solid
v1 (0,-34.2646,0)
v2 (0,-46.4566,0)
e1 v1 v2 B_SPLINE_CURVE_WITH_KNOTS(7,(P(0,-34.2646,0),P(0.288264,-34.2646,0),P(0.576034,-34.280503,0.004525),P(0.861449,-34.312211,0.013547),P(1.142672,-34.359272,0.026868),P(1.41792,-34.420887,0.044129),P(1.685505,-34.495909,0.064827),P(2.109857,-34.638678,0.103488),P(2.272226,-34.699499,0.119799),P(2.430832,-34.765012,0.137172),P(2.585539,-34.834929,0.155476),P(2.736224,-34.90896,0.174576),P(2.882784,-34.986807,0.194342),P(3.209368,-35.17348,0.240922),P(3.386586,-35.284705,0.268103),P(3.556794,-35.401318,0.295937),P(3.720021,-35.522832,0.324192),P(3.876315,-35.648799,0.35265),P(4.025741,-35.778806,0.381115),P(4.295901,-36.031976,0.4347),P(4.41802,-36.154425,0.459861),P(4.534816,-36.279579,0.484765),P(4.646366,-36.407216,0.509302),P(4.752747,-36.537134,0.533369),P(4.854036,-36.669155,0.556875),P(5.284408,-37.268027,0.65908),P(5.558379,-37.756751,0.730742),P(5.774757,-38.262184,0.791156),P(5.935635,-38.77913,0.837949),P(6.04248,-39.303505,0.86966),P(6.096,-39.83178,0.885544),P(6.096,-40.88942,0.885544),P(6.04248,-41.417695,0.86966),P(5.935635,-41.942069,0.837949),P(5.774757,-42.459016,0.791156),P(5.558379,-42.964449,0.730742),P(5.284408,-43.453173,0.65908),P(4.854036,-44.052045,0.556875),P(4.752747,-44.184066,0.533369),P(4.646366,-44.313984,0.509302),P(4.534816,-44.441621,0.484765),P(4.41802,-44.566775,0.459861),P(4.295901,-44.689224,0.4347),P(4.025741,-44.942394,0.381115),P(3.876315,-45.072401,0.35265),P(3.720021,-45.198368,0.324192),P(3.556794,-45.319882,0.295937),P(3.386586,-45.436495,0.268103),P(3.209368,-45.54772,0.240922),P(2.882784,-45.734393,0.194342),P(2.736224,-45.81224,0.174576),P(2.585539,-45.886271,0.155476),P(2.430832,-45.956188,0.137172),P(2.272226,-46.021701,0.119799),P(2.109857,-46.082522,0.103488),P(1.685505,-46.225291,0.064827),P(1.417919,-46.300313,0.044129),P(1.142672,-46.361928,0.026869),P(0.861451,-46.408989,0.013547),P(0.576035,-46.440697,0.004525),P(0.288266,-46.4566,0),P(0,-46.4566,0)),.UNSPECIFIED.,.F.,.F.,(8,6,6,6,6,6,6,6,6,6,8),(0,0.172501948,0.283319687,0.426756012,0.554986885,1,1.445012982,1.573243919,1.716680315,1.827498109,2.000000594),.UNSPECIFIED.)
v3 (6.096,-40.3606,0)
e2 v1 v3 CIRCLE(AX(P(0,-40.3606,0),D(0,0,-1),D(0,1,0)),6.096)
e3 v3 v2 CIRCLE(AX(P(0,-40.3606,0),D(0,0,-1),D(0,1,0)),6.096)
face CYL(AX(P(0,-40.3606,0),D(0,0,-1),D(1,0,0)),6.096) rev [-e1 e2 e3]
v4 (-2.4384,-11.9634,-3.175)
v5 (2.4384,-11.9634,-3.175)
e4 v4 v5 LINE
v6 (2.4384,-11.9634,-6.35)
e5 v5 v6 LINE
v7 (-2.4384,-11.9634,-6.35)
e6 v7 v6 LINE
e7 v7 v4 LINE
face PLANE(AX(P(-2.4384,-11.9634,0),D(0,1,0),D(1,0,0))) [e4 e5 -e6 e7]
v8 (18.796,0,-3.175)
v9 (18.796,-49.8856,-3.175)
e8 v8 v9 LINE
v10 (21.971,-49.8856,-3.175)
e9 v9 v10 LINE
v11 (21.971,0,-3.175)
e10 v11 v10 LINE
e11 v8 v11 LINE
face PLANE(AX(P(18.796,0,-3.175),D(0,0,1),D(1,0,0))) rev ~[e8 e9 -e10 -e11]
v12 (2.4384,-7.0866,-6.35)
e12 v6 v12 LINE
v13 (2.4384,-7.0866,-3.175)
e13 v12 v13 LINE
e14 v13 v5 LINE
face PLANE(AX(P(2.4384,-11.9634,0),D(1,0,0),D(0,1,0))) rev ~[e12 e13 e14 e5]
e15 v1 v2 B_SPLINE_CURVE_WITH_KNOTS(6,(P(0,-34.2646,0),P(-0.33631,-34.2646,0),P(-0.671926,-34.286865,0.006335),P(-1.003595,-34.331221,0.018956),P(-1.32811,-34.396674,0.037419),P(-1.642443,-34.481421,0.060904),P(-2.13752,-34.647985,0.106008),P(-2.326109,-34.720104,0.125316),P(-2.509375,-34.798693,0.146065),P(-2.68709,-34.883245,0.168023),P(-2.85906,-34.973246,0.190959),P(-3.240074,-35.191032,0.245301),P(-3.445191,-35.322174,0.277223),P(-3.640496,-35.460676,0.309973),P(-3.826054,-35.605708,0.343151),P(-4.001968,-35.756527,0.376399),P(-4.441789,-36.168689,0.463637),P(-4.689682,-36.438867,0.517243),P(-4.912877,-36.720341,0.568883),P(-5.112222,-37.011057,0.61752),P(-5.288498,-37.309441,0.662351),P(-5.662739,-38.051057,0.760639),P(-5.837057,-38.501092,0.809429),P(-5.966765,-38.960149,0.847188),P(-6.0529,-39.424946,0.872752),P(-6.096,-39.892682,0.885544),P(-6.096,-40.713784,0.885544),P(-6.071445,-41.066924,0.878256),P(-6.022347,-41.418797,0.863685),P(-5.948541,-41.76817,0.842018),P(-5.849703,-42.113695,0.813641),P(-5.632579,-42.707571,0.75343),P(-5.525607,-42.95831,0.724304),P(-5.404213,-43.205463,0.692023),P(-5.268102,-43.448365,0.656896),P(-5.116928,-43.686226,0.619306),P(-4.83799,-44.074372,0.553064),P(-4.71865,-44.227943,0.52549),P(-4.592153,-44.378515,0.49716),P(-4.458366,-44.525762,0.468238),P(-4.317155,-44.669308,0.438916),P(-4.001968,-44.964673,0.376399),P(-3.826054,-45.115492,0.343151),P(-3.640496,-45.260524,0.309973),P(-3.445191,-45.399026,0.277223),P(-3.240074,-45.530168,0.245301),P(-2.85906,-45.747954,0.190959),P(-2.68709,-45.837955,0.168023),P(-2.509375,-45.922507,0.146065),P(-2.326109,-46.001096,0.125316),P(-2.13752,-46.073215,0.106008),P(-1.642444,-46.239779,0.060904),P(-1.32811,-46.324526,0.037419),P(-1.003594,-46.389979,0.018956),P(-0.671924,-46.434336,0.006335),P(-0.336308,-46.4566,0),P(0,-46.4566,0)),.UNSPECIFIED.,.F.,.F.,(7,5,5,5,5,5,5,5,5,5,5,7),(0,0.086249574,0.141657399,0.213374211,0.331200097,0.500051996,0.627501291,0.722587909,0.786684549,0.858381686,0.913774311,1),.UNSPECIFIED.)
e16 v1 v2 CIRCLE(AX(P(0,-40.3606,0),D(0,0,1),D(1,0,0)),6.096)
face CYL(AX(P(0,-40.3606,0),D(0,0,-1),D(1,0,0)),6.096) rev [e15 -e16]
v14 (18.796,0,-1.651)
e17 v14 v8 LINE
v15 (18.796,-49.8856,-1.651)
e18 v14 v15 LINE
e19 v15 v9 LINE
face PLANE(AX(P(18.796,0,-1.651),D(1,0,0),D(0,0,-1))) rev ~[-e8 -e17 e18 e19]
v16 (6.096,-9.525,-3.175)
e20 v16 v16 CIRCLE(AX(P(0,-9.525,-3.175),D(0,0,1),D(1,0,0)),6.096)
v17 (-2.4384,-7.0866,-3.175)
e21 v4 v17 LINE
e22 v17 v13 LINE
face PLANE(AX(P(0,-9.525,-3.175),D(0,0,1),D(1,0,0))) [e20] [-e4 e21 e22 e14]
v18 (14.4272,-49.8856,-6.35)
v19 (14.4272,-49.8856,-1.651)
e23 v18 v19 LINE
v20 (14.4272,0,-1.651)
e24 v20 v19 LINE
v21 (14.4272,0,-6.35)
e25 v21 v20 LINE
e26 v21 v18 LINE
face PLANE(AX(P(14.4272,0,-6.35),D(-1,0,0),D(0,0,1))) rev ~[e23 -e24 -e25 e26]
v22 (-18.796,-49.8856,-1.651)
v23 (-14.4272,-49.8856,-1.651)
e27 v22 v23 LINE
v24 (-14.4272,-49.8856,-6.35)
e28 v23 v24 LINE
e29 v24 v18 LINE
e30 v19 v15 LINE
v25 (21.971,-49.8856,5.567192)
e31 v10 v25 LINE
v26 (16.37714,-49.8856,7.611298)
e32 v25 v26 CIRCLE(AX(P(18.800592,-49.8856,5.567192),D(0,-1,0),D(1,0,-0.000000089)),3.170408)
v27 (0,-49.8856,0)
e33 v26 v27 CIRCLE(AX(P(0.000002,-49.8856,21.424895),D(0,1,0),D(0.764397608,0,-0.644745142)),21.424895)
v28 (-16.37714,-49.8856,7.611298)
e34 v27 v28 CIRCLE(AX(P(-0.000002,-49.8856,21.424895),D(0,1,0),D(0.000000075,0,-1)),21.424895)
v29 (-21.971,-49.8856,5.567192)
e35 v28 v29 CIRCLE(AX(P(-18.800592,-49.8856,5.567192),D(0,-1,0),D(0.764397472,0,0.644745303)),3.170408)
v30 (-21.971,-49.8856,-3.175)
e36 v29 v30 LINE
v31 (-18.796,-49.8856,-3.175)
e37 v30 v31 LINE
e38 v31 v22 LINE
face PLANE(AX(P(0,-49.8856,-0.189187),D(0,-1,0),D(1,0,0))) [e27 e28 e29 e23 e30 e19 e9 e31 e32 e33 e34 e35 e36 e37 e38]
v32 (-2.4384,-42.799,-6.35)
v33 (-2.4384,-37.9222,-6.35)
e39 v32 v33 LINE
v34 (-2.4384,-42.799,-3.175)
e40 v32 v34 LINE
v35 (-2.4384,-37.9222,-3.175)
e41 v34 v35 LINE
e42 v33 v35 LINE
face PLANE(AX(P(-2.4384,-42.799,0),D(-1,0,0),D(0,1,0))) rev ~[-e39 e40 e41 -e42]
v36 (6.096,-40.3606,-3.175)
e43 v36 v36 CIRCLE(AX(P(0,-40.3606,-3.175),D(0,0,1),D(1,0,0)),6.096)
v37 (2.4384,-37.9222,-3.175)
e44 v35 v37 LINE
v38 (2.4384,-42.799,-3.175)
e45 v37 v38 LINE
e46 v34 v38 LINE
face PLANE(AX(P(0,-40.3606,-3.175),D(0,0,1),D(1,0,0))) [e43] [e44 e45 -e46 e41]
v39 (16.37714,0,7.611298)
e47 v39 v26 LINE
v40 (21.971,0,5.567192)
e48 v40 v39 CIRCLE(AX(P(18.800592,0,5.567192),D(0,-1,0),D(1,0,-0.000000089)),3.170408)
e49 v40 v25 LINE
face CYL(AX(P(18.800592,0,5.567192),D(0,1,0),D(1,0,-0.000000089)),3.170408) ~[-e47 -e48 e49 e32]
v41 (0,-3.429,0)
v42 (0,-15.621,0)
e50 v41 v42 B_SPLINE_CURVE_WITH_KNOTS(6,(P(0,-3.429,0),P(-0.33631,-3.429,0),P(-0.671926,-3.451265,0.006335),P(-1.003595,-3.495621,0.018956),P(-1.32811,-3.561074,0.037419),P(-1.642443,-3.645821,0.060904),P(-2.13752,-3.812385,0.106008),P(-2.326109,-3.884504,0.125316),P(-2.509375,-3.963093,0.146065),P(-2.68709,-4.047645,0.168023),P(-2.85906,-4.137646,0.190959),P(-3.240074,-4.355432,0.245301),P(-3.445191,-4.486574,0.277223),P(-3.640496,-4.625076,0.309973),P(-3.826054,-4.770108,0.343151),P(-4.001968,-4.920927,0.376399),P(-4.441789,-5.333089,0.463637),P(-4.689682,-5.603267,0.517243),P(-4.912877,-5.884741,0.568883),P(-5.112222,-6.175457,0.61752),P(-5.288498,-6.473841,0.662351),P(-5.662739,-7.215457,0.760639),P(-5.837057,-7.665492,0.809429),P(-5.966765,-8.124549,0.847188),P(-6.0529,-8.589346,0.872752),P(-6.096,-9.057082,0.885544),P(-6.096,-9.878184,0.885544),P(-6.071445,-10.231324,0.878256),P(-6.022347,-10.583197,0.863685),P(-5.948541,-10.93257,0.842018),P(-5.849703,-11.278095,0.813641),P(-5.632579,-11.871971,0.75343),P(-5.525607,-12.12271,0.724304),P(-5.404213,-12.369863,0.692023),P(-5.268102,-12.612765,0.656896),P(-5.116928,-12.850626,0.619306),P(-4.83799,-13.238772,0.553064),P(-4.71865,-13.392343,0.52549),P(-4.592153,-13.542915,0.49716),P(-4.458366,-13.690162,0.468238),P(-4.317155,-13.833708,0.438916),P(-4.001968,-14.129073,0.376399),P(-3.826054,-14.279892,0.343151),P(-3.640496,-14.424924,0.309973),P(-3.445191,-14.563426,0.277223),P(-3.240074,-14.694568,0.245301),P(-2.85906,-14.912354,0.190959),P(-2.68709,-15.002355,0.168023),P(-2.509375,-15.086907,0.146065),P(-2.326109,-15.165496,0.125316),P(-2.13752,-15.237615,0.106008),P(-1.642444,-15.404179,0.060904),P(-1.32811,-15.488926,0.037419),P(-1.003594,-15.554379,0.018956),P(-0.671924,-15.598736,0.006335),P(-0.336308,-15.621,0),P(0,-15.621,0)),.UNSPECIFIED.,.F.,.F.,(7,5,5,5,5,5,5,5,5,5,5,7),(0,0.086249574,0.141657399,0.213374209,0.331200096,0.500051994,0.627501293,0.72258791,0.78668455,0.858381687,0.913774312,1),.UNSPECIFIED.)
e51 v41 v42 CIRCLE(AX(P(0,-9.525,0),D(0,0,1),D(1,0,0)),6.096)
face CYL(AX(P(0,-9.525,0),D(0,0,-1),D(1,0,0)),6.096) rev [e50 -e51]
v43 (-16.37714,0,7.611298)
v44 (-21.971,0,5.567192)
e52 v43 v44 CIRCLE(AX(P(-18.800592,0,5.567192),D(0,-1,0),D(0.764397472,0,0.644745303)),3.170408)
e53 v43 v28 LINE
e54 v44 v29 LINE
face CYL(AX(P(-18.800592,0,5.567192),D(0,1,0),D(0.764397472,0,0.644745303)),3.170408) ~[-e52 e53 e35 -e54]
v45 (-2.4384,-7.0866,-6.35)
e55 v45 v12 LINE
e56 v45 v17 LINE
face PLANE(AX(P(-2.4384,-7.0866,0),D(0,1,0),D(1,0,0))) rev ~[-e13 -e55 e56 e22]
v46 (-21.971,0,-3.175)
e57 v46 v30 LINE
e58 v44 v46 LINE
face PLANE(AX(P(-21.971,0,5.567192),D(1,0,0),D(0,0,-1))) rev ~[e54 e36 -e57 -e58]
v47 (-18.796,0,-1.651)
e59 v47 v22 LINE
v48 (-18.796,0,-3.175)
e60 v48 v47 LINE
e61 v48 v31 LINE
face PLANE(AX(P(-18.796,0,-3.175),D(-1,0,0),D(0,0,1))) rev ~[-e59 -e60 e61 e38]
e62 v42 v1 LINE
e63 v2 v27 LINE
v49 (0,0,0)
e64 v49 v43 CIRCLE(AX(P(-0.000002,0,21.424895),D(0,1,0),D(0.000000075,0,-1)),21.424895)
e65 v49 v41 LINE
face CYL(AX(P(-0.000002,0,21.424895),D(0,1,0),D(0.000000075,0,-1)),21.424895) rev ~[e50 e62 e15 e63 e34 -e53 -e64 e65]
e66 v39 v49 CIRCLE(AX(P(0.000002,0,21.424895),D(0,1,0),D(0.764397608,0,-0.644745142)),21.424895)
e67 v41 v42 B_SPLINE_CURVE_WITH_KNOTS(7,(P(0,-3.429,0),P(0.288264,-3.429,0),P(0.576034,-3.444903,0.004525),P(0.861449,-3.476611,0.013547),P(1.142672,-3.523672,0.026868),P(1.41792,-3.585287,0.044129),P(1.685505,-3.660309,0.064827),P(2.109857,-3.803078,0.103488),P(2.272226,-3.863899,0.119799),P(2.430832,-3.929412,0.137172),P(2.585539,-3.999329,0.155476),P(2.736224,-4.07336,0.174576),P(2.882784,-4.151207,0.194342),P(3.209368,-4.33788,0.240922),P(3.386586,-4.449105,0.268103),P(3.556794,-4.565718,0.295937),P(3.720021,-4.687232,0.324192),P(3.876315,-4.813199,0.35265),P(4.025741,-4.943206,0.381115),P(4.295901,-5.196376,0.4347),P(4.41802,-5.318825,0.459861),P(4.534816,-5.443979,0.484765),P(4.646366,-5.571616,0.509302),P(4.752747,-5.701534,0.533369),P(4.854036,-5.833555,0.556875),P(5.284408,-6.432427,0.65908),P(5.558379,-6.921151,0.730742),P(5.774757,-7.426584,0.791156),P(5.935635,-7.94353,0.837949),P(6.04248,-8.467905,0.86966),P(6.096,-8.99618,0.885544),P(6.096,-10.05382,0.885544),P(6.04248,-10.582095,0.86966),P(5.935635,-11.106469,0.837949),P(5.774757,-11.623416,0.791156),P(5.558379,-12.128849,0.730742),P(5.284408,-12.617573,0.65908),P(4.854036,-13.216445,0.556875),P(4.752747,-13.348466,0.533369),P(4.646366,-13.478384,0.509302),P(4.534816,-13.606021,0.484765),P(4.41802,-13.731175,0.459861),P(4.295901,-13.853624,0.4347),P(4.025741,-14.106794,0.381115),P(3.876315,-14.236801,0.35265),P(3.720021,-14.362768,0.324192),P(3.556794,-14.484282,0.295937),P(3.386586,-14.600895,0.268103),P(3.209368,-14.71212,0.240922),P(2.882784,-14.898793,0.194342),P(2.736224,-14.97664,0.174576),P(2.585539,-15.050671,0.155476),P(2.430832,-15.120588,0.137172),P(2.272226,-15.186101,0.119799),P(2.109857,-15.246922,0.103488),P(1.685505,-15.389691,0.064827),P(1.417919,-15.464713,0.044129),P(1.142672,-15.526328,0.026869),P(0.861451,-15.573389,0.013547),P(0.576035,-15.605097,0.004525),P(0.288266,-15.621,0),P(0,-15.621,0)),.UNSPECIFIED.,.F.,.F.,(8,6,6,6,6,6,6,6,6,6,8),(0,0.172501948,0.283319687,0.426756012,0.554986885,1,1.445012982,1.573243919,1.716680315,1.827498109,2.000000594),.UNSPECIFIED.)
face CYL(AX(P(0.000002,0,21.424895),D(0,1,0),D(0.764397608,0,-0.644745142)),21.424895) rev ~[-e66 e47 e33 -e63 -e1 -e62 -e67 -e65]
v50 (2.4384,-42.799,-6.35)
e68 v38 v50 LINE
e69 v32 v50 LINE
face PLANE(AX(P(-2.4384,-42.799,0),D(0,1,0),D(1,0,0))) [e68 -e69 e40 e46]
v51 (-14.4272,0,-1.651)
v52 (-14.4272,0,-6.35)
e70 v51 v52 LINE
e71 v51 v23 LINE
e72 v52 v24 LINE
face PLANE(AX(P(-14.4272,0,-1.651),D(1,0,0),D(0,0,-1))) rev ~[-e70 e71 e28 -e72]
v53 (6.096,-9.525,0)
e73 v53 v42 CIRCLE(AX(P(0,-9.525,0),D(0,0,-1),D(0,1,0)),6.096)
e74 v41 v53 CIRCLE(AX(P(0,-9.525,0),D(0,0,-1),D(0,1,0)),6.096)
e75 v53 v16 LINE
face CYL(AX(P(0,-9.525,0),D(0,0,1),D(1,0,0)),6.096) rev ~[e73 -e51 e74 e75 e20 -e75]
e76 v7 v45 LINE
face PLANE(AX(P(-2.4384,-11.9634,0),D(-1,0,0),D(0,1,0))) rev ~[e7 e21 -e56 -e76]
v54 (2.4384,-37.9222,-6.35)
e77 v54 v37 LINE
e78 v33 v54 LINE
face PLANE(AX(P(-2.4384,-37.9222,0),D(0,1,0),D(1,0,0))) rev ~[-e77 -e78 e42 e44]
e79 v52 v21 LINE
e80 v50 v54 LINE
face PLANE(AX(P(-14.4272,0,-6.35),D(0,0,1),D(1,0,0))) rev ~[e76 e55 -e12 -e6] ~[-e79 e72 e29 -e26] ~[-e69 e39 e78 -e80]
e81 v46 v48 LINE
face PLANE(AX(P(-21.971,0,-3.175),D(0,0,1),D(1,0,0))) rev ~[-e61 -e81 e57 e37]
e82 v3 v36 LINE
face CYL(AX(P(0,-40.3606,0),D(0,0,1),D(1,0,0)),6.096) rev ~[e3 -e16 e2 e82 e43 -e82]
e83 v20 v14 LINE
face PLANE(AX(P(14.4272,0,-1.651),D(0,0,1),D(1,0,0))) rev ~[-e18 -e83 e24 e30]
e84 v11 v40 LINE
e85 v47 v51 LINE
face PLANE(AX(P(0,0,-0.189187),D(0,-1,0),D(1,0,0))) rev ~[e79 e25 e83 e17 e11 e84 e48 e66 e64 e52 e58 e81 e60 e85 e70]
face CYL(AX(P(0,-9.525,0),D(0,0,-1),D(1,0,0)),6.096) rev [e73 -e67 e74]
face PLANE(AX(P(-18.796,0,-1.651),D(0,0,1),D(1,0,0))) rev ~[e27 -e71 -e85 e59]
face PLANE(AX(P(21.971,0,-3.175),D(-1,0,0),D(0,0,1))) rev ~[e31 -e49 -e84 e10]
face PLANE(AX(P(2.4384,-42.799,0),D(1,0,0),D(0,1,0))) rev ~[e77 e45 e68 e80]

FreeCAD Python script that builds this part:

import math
import FreeCAD as App
import Part
import Sketcher
Q = App.Units.Quantity

doc = App.newDocument("Part")
body = doc.addObject("PartDesign::Body", "Body")

# Sketch on XZ plane
sketch1 = body.newObject("Sketcher::SketchObject", "Sketch")
sketch1.AttachmentSupport = (doc.getObject("XZ_Plane"), [""])
sketch1.MapMode = "FlatFace"
sketch1.addGeometry(Part.LineSegment(App.Vector(-22, 5.6, 0), App.Vector(-22, -3.2, 0)), False)
sketch1.addGeometry(Part.LineSegment(App.Vector(-22, -3.2, 0), App.Vector(-18.8, -3.2, 0)), False)
sketch1.addGeometry(Part.LineSegment(App.Vector(-18.8, -3.2, 0), App.Vector(-18.8, -1.7, 0)), False)
sketch1.addGeometry(Part.LineSegment(App.Vector(-18.8, -1.7, 0), App.Vector(-14.4, -1.7, 0)), False)
sketch1.addGeometry(Part.LineSegment(App.Vector(-14.4, -1.7, 0), App.Vector(-14.4, -6.3, 0)), False)
sketch1.addGeometry(Part.LineSegment(App.Vector(-14.4, -6.3, 0), App.Vector(14.4, -6.3, 0)), False)
sketch1.addGeometry(Part.LineSegment(App.Vector(14.4, -6.3, 0), App.Vector(14.4, -1.7, 0)), False)
sketch1.addGeometry(Part.LineSegment(App.Vector(14.4, -1.7, 0), App.Vector(18.8, -1.7, 0)), False)
sketch1.addGeometry(Part.LineSegment(App.Vector(18.8, -1.7, 0), App.Vector(18.8, -3.2, 0)), False)
sketch1.addGeometry(Part.LineSegment(App.Vector(18.8, -3.2, 0), App.Vector(22, -3.2, 0)), False)
sketch1.addGeometry(Part.LineSegment(App.Vector(22, -3.2, 0), App.Vector(22, 5.6, 0)), False)
sketch1.addGeometry(Part.ArcOfCircle(Part.Circle(App.Vector(18.8, 5.6, 0), App.Vector(0, 0, 1), 3.2), math.radians(0), math.radians(140)), False)
sketch1.addGeometry(Part.ArcOfCircle(Part.Circle(App.Vector(0, 21.4, 0), App.Vector(0, 0, 1), 21.4), math.radians(-90), math.radians(-40)), False)
sketch1.addGeometry(Part.ArcOfCircle(Part.Circle(App.Vector(0, 21.4, 0), App.Vector(0, 0, 1), 21.4), math.radians(-140), math.radians(-90)), False)
sketch1.addGeometry(Part.ArcOfCircle(Part.Circle(App.Vector(-18.8, 5.6, 0), App.Vector(0, 0, 1), 3.2), math.radians(40), math.radians(180)), False)
sketch1.addConstraint(Sketcher.Constraint("Coincident", 0, 2, 1, 1))
sketch1.addConstraint(Sketcher.Constraint("Coincident", 1, 2, 2, 1))
sketch1.addConstraint(Sketcher.Constraint("Coincident", 2, 2, 3, 1))
sketch1.addConstraint(Sketcher.Constraint("Coincident", 3, 2, 4, 1))
sketch1.addConstraint(Sketcher.Constraint("Coincident", 4, 2, 5, 1))
sketch1.addConstraint(Sketcher.Constraint("Coincident", 5, 2, 6, 1))
sketch1.addConstraint(Sketcher.Constraint("Coincident", 6, 2, 7, 1))
sketch1.addConstraint(Sketcher.Constraint("Coincident", 7, 2, 8, 1))
sketch1.addConstraint(Sketcher.Constraint("Coincident", 8, 2, 9, 1))
sketch1.addConstraint(Sketcher.Constraint("Coincident", 9, 2, 10, 1))
sketch1.addConstraint(Sketcher.Constraint("Tangent", 10, 2, 11, 1))
sketch1.addConstraint(Sketcher.Constraint("Tangent", 11, 2, 12, 2))
sketch1.addConstraint(Sketcher.Constraint("Tangent", 12, 1, 13, 2))
sketch1.addConstraint(Sketcher.Constraint("Tangent", 13, 1, 14, 1))
sketch1.addConstraint(Sketcher.Constraint("Tangent", 14, 2, 0, 1))
sketch1.addConstraint(Sketcher.Constraint("Vertical", 0))
sketch1.addConstraint(Sketcher.Constraint("Horizontal", 1))
sketch1.addConstraint(Sketcher.Constraint("Vertical", 2))
sketch1.addConstraint(Sketcher.Constraint("Horizontal", 3))
sketch1.addConstraint(Sketcher.Constraint("Vertical", 4))
sketch1.addConstraint(Sketcher.Constraint("Horizontal", 5))
sketch1.addConstraint(Sketcher.Constraint("Vertical", 6))
sketch1.addConstraint(Sketcher.Constraint("Horizontal", 7))
sketch1.addConstraint(Sketcher.Constraint("Vertical", 8))
sketch1.addConstraint(Sketcher.Constraint("Horizontal", 9))
sketch1.addConstraint(Sketcher.Constraint("Vertical", 10))
sketch1.addConstraint(Sketcher.Constraint("Coincident", 12, 1, -1, 1))
sketch1.addConstraint(Sketcher.Constraint("Equal", 12, 13))
sketch1.addConstraint(Sketcher.Constraint("Equal", 11, 14))
sketch1.addConstraint(Sketcher.Constraint("Symmetric", 11, 3, 14, 3, -2))
sketch1.addConstraint(Sketcher.Constraint("Symmetric", 3, 2, 6, 2, -2))
sketch1.addConstraint(Sketcher.Constraint("Symmetric", 1, 2, 8, 2, -2))
sketch1.addConstraint(Sketcher.Constraint("DistanceY", 2, 1, 2, 2, Q("0.06 in")))
sketch1.addConstraint(Sketcher.Constraint("DistanceX", 1, 1, 1, 2, Q("0.125 in")))
sketch1.addConstraint(Sketcher.Constraint("DistanceX", 3, 1, 3, 2, Q("0.172 in")))
sketch1.addConstraint(Sketcher.Constraint("DistanceX", 5, 1, 5, 2, Q("1.136 in")))
sketch1.addConstraint(Sketcher.Constraint("DistanceY", 4, 2, 4, 1, Q("0.185 in")))
sketch1.addConstraint(Sketcher.Constraint("DistanceY", 4, 2, -1, 1, Q("0.25 in")))
sketch1.addConstraint(Sketcher.Constraint("Radius", 11, 3.170408))
sketch1.addConstraint(Sketcher.Constraint("Radius", 12, 21.424895))
pad1 = body.newObject("PartDesign::Pad", "Pad")
pad1.Profile = sketch1
pad1.Length = Q("1.964 in")

# Sketch on XY plane
sketch2 = body.newObject("Sketcher::SketchObject", "Sketch001")
sketch2.AttachmentSupport = (doc.getObject("XY_Plane"), [""])
sketch2.MapMode = "FlatFace"
sketch2.addGeometry(Part.LineSegment(App.Vector(-2.4, -7.1, 0), App.Vector(-2.4, -12, 0)), False)
sketch2.addGeometry(Part.LineSegment(App.Vector(-2.4, -12, 0), App.Vector(2.4, -12, 0)), False)
sketch2.addGeometry(Part.LineSegment(App.Vector(2.4, -12, 0), App.Vector(2.4, -7.1, 0)), False)
sketch2.addGeometry(Part.LineSegment(App.Vector(2.4, -7.1, 0), App.Vector(-2.4, -7.1, 0)), False)
sketch2.addGeometry(Part.LineSegment(App.Vector(-2.4, -37.9, 0), App.Vector(-2.4, -42.8, 0)), False)
sketch2.addGeometry(Part.LineSegment(App.Vector(-2.4, -42.8, 0), App.Vector(2.4, -42.8, 0)), False)
sketch2.addGeometry(Part.LineSegment(App.Vector(2.4, -42.8, 0), App.Vector(2.4, -37.9, 0)), False)
sketch2.addGeometry(Part.LineSegment(App.Vector(2.4, -37.9, 0), App.Vector(-2.4, -37.9, 0)), False)
sketch2.addConstraint(Sketcher.Constraint("Coincident", 0, 2, 1, 1))
sketch2.addConstraint(Sketcher.Constraint("Coincident", 1, 2, 2, 1))
sketch2.addConstraint(Sketcher.Constraint("Coincident", 2, 2, 3, 1))
sketch2.addConstraint(Sketcher.Constraint("Coincident", 3, 2, 0, 1))
sketch2.addConstraint(Sketcher.Constraint("Coincident", 4, 2, 5, 1))
sketch2.addConstraint(Sketcher.Constraint("Coincident", 5, 2, 6, 1))
sketch2.addConstraint(Sketcher.Constraint("Coincident", 6, 2, 7, 1))
sketch2.addConstraint(Sketcher.Constraint("Coincident", 7, 2, 4, 1))
sketch2.addConstraint(Sketcher.Constraint("Vertical", 0))
sketch2.addConstraint(Sketcher.Constraint("Horizontal", 1))
sketch2.addConstraint(Sketcher.Constraint("Vertical", 2))
sketch2.addConstraint(Sketcher.Constraint("Horizontal", 3))
sketch2.addConstraint(Sketcher.Constraint("Vertical", 4))
sketch2.addConstraint(Sketcher.Constraint("Horizontal", 5))
sketch2.addConstraint(Sketcher.Constraint("Vertical", 6))
sketch2.addConstraint(Sketcher.Constraint("Horizontal", 7))
sketch2.addConstraint(Sketcher.Constraint("Vertical", 3, 2, 4, 2))
sketch2.addConstraint(Sketcher.Constraint("Vertical", 2, 2, 5, 2))
sketch2.addConstraint(Sketcher.Constraint("Equal", 7, 0))
sketch2.addConstraint(Sketcher.Constraint("Equal", 2, 4))
sketch2.addConstraint(Sketcher.Constraint("DistanceX", 1, 1, 1, 2, Q("0.192 in")))
sketch2.addConstraint(Sketcher.Constraint("DistanceX", 0, 2, -1, 1, Q("0.096 in")))
sketch2.addConstraint(Sketcher.Constraint("DistanceY", 0, 2, -1, 1, Q("0.471 in")))
sketch2.addConstraint(Sketcher.Constraint("DistanceY", 4, 2, -1, 1, Q("1.685 in")))
pocket1 = body.newObject("PartDesign::Pocket", "Pocket")
pocket1.Profile = sketch2
pocket1.Type = "ThroughAll"
pocket1.Midplane = True

# Sketch on XY plane
sketch3 = body.newObject("Sketcher::SketchObject", "Sketch002")
sketch3.AttachmentSupport = (doc.getObject("XY_Plane"), [""])
sketch3.MapMode = "FlatFace"
sketch3.addGeometry(Part.Circle(App.Vector(0, -40, 0), App.Vector(0, 0, 1), 6), False)
sketch3.addGeometry(Part.Circle(App.Vector(0, -10, 0), App.Vector(0, 0, 1), 6), False)
sketch3.addConstraint(Sketcher.Constraint("Equal", 0, 1))
sketch3.addConstraint(Sketcher.Constraint("PointOnObject", 0, 3, -2))
sketch3.addConstraint(Sketcher.Constraint("PointOnObject", 1, 3, -2))
sketch3.addConstraint(Sketcher.Constraint("Diameter", 0, Q("0.48 in")))
sketch3.addConstraint(Sketcher.Constraint("DistanceY", 0, 3, -1, 1, Q("1.589 in")))
sketch3.addConstraint(Sketcher.Constraint("DistanceY", 1, 3, -1, 1, Q("0.375 in")))
pocket2 = body.newObject("PartDesign::Pocket", "Pocket001")
pocket2.Profile = sketch3
pocket2.Type = "TwoLengths"
pocket2.Length = 8.7386
pocket2.Length2 = Q("0.125 in")
pocket2.Reversed = True

doc.recompute()
